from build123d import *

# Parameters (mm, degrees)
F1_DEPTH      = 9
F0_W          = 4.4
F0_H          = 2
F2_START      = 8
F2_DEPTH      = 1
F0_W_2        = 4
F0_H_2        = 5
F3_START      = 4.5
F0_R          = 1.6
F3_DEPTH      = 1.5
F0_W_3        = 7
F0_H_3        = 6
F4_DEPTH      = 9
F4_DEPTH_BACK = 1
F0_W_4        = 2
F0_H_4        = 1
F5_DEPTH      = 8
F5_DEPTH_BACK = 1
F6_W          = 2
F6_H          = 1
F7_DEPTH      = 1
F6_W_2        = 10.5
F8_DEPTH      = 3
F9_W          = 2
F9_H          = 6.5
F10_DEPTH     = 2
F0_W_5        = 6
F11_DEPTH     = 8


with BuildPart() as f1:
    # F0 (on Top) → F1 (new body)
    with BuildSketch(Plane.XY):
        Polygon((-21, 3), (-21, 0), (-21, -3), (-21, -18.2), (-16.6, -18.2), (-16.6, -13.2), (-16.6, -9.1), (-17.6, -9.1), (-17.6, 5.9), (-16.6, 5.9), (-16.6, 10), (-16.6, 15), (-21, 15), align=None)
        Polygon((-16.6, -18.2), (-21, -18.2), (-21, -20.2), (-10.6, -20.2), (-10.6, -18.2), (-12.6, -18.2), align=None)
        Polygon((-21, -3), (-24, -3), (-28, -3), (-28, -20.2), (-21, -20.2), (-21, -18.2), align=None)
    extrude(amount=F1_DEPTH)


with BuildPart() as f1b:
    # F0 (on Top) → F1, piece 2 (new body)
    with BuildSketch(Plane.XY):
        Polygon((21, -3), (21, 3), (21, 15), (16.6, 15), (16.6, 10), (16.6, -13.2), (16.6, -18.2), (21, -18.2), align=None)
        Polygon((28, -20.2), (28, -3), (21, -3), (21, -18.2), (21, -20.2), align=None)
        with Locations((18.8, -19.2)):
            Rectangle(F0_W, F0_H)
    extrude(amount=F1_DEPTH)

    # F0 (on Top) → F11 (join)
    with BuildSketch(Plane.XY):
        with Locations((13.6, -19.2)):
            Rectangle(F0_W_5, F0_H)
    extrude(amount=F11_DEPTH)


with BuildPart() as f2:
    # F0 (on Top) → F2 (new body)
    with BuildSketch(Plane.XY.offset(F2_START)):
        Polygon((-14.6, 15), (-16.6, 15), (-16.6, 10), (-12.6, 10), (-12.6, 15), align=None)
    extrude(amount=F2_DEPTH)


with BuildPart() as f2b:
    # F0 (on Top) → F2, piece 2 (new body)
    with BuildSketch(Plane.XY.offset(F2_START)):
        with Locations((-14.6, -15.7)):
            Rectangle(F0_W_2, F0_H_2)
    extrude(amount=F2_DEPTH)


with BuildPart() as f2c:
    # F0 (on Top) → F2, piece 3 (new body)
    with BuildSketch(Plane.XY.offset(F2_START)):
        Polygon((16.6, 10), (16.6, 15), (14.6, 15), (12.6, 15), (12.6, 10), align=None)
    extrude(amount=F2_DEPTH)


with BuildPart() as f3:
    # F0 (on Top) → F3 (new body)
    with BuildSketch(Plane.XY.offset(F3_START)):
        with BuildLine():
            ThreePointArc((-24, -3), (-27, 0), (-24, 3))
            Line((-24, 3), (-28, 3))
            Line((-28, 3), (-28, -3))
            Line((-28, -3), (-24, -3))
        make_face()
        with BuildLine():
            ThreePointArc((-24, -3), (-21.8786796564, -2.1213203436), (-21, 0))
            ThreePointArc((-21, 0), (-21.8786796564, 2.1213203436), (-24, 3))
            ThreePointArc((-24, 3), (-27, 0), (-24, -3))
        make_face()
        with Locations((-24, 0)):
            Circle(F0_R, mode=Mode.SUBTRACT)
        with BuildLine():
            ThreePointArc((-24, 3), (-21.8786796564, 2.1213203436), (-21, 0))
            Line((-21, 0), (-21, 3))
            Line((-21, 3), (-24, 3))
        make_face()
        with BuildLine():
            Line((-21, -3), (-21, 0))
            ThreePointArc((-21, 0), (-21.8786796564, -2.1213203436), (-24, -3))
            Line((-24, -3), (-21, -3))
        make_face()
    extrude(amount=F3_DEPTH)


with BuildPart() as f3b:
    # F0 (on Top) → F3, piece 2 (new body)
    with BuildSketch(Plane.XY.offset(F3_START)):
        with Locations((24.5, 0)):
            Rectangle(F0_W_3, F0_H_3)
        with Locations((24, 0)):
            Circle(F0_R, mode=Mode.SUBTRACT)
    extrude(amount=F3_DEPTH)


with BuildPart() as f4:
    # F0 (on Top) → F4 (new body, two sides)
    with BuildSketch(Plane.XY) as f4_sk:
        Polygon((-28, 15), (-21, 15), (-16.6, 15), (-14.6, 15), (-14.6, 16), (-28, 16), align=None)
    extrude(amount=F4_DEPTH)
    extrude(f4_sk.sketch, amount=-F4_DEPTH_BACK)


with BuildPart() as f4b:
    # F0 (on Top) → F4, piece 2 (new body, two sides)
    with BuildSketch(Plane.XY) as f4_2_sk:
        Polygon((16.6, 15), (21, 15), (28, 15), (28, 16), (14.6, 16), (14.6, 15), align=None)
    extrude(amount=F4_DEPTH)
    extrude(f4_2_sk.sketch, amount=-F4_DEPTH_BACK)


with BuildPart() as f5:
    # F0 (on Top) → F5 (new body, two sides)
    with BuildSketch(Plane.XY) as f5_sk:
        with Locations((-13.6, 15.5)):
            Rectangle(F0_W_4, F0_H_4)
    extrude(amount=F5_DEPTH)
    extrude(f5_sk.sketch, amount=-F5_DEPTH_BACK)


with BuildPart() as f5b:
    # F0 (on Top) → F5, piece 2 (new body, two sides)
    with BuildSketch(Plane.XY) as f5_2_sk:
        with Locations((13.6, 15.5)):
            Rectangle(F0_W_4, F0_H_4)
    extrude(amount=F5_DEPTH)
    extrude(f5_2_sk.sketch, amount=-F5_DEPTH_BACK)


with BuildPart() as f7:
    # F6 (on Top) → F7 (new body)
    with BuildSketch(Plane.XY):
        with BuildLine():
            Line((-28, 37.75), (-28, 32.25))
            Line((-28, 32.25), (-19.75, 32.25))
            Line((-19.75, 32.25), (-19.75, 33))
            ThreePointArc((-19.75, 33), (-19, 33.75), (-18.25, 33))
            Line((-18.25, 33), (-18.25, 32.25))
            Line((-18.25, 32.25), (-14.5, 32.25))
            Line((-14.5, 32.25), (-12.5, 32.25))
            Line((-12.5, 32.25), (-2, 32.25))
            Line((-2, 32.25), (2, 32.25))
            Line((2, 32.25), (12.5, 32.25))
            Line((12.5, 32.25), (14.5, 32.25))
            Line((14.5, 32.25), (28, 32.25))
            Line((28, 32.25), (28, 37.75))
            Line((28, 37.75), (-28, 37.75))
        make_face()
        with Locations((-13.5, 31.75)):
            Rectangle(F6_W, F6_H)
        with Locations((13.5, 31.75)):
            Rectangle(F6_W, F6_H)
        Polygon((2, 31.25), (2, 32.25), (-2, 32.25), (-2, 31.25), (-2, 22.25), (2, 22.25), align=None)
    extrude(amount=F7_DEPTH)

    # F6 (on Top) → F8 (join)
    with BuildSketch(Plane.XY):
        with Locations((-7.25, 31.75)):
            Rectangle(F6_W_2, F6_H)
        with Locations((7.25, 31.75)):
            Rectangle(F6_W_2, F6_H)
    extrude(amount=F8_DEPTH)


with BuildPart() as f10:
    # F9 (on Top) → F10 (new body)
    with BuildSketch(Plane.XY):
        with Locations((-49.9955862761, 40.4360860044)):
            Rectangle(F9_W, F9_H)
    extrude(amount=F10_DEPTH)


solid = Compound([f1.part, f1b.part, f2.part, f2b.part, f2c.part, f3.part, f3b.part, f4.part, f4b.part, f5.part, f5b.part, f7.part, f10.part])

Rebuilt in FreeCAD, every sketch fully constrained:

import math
import FreeCAD as App
import Part
import Sketcher
from FreeCAD import Vector
Q = App.Units.Quantity

doc = App.newDocument("Part")
body = doc.addObject("PartDesign::Body", "Body")

# Sketch on XY plane
sketch1 = doc.addObject("Sketcher::SketchObject", "Sketch")
body.addObject(sketch1)
sketch1.AttachmentSupport = (doc.XY_Plane, [""])
sketch1.MapMode = "FlatFace"
sketch1.addGeometry(Part.LineSegment(Vector(-16.6, -18.2, 0), Vector(-16.6, -9.1, 0)), False)
sketch1.addGeometry(Part.LineSegment(Vector(-16.6, -9.1, 0), Vector(-17.6, -9.1, 0)), False)
sketch1.addGeometry(Part.LineSegment(Vector(-17.6, -9.1, 0), Vector(-17.6, 5.9, 0)), False)
sketch1.addGeometry(Part.LineSegment(Vector(-17.6, 5.9, 0), Vector(-16.6, 5.9, 0)), False)
sketch1.addGeometry(Part.LineSegment(Vector(-16.6, 5.9, 0), Vector(-16.6, 15, 0)), False)
sketch1.addGeometry(Part.LineSegment(Vector(-16.6, 15, 0), Vector(-21, 15, 0)), False)
sketch1.addGeometry(Part.LineSegment(Vector(-21, 15, 0), Vector(-21, -3, 0)), False)
sketch1.addGeometry(Part.LineSegment(Vector(-21, -3, 0), Vector(-28, -3, 0)), False)
sketch1.addGeometry(Part.LineSegment(Vector(-28, -3, 0), Vector(-28, -20.2, 0)), False)
sketch1.addGeometry(Part.LineSegment(Vector(-28, -20.2, 0), Vector(-10.6, -20.2, 0)), False)
sketch1.addGeometry(Part.LineSegment(Vector(-10.6, -20.2, 0), Vector(-10.6, -18.2, 0)), False)
sketch1.addGeometry(Part.LineSegment(Vector(-10.6, -18.2, 0), Vector(-16.6, -18.2, 0)), False)
sketch1.addConstraint(Sketcher.Constraint("Coincident", 0, 2, 1, 1))
sketch1.addConstraint(Sketcher.Constraint("Coincident", 1, 2, 2, 1))
sketch1.addConstraint(Sketcher.Constraint("Coincident", 2, 2, 3, 1))
sketch1.addConstraint(Sketcher.Constraint("Coincident", 3, 2, 4, 1))
sketch1.addConstraint(Sketcher.Constraint("Coincident", 4, 2, 5, 1))
sketch1.addConstraint(Sketcher.Constraint("Coincident", 5, 2, 6, 1))
sketch1.addConstraint(Sketcher.Constraint("Coincident", 6, 2, 7, 1))
sketch1.addConstraint(Sketcher.Constraint("Coincident", 7, 2, 8, 1))
sketch1.addConstraint(Sketcher.Constraint("Coincident", 8, 2, 9, 1))
sketch1.addConstraint(Sketcher.Constraint("Coincident", 9, 2, 10, 1))
sketch1.addConstraint(Sketcher.Constraint("Coincident", 10, 2, 11, 1))
sketch1.addConstraint(Sketcher.Constraint("Coincident", 11, 2, 0, 1))
sketch1.addConstraint(Sketcher.Constraint("Vertical", 0))
sketch1.addConstraint(Sketcher.Constraint("Horizontal", 1))
sketch1.addConstraint(Sketcher.Constraint("Vertical", 2))
sketch1.addConstraint(Sketcher.Constraint("Horizontal", 3))
sketch1.addConstraint(Sketcher.Constraint("Vertical", 4))
sketch1.addConstraint(Sketcher.Constraint("Horizontal", 5))
sketch1.addConstraint(Sketcher.Constraint("Vertical", 6))
sketch1.addConstraint(Sketcher.Constraint("Horizontal", 7))
sketch1.addConstraint(Sketcher.Constraint("Vertical", 8))
sketch1.addConstraint(Sketcher.Constraint("Horizontal", 9))
sketch1.addConstraint(Sketcher.Constraint("Vertical", 10))
sketch1.addConstraint(Sketcher.Constraint("Horizontal", 11))
sketch1.addConstraint(Sketcher.Constraint("Vertical", 0, 2, 3, 2))
sketch1.addConstraint(Sketcher.Constraint("Equal", 0, 4))
sketch1.addConstraint(Sketcher.Constraint("DistanceX", 1, 2, 1, 1, Q("1 mm")))
sketch1.addConstraint(Sketcher.Constraint("DistanceX", 7, 2, 7, 1, Q("7 mm")))
sketch1.addConstraint(Sketcher.Constraint("DistanceX", 11, 2, 11, 1, Q("6 mm")))
sketch1.addConstraint(Sketcher.Constraint("DistanceY", 2, 1, 2, 2, Q("15 mm")))
sketch1.addConstraint(Sketcher.Constraint("DistanceY", 6, 2, 6, 1, Q("18 mm")))
sketch1.addConstraint(Sketcher.Constraint("DistanceY", 10, 1, 10, 2, Q("2 mm")))
sketch1.addConstraint(Sketcher.Constraint("DistanceX", 5, 2, 5, 1, Q("4.4 mm")))
sketch1.addConstraint(Sketcher.Constraint("DistanceY", 0, 1, 0, 2, Q("9.1 mm")))
sketch1.addConstraint(Sketcher.Constraint("DistanceY", -1, 1, 4, 2, Q("15 mm")))
sketch1.addConstraint(Sketcher.Constraint("DistanceX", 5, 2, -1, 1, Q("21 mm")))
pad1 = doc.addObject("PartDesign::Pad", "Pad")
body.addObject(pad1)
pad1.Profile = sketch1
pad1.Length = 9
body2 = doc.addObject("PartDesign::Body", "Body001")

# Sketch on XY plane
sketch2 = doc.addObject("Sketcher::SketchObject", "Sketch001")
body2.addObject(sketch2)
sketch2.AttachmentSupport = (doc.getObject("XY_Plane001"), [""])
sketch2.MapMode = "FlatFace"
sketch2.addGeometry(Part.LineSegment(Vector(21, 15, 0), Vector(16.6, 15, 0)), False)
sketch2.addGeometry(Part.LineSegment(Vector(16.6, 15, 0), Vector(16.6, -20.2, 0)), False)
sketch2.addGeometry(Part.LineSegment(Vector(16.6, -20.2, 0), Vector(28, -20.2, 0)), False)
sketch2.addGeometry(Part.LineSegment(Vector(28, -20.2, 0), Vector(28, -3, 0)), False)
sketch2.addGeometry(Part.LineSegment(Vector(28, -3, 0), Vector(21, -3, 0)), False)
sketch2.addGeometry(Part.LineSegment(Vector(21, -3, 0), Vector(21, 15, 0)), False)
sketch2.addConstraint(Sketcher.Constraint("Coincident", 0, 2, 1, 1))
sketch2.addConstraint(Sketcher.Constraint("Coincident", 1, 2, 2, 1))
sketch2.addConstraint(Sketcher.Constraint("Coincident", 2, 2, 3, 1))
sketch2.addConstraint(Sketcher.Constraint("Coincident", 3, 2, 4, 1))
sketch2.addConstraint(Sketcher.Constraint("Coincident", 4, 2, 5, 1))
sketch2.addConstraint(Sketcher.Constraint("Coincident", 5, 2, 0, 1))
sketch2.addConstraint(Sketcher.Constraint("Horizontal", 0))
sketch2.addConstraint(Sketcher.Constraint("Vertical", 1))
sketch2.addConstraint(Sketcher.Constraint("Horizontal", 2))
sketch2.addConstraint(Sketcher.Constraint("Vertical", 3))
sketch2.addConstraint(Sketcher.Constraint("Horizontal", 4))
sketch2.addConstraint(Sketcher.Constraint("Vertical", 5))
sketch2.addConstraint(Sketcher.Constraint("DistanceX", 4, 2, 4, 1, Q("7 mm")))
sketch2.addConstraint(Sketcher.Constraint("DistanceY", 5, 1, 5, 2, Q("18 mm")))
sketch2.addConstraint(Sketcher.Constraint("DistanceX", 0, 2, 0, 1, Q("4.4 mm")))
sketch2.addConstraint(Sketcher.Constraint("DistanceY", 1, 2, 1, 1, Q("35.2 mm")))
sketch2.addConstraint(Sketcher.Constraint("DistanceY", -1, 1, 0, 2, Q("15 mm")))
sketch2.addConstraint(Sketcher.Constraint("DistanceX", -1, 1, 2, 2, Q("28 mm")))
pad2 = doc.addObject("PartDesign::Pad", "Pad001")
body2.addObject(pad2)
pad2.Profile = sketch2
pad2.Length = 9

# Sketch on XY plane
sketch3 = doc.addObject("Sketcher::SketchObject", "Sketch002")
body2.addObject(sketch3)
sketch3.AttachmentSupport = (doc.getObject("XY_Plane001"), [""])
sketch3.MapMode = "FlatFace"
sketch3.addGeometry(Part.LineSegment(Vector(10.6, -18.2, 0), Vector(10.6, -20.2, 0)), False)
sketch3.addGeometry(Part.LineSegment(Vector(10.6, -20.2, 0), Vector(16.6, -20.2, 0)), False)
sketch3.addGeometry(Part.LineSegment(Vector(16.6, -20.2, 0), Vector(16.6, -18.2, 0)), False)
sketch3.addGeometry(Part.LineSegment(Vector(16.6, -18.2, 0), Vector(10.6, -18.2, 0)), False)
sketch3.addConstraint(Sketcher.Constraint("Coincident", 0, 2, 1, 1))
sketch3.addConstraint(Sketcher.Constraint("Coincident", 1, 2, 2, 1))
sketch3.addConstraint(Sketcher.Constraint("Coincident", 2, 2, 3, 1))
sketch3.addConstraint(Sketcher.Constraint("Coincident", 3, 2, 0, 1))
sketch3.addConstraint(Sketcher.Constraint("Vertical", 0))
sketch3.addConstraint(Sketcher.Constraint("Horizontal", 1))
sketch3.addConstraint(Sketcher.Constraint("Vertical", 2))
sketch3.addConstraint(Sketcher.Constraint("Horizontal", 3))
sketch3.addConstraint(Sketcher.Constraint("DistanceX", 1, 1, 1, 2, Q("6 mm")))
sketch3.addConstraint(Sketcher.Constraint("DistanceY", 0, 2, 0, 1, Q("2 mm")))
sketch3.addConstraint(Sketcher.Constraint("DistanceX", -1, 1, 0, 2, Q("10.6 mm")))
sketch3.addConstraint(Sketcher.Constraint("DistanceY", 0, 2, -1, 1, Q("20.2 mm")))
pad3 = doc.addObject("PartDesign::Pad", "Pad002")
body2.addObject(pad3)
pad3.Profile = sketch3
pad3.Length = 8
body3 = doc.addObject("PartDesign::Body", "Body002")

# Sketch on XY plane
sketch4 = doc.addObject("Sketcher::SketchObject", "Sketch003")
body3.addObject(sketch4)
sketch4.AttachmentSupport = (doc.getObject("XY_Plane002"), [""])
sketch4.MapMode = "FlatFace"
sketch4.AttachmentOffset = App.Placement(Vector(0, 0, 8), App.Rotation())
sketch4.addGeometry(Part.LineSegment(Vector(-16.6, 15, 0), Vector(-16.6, 10, 0)), False)
sketch4.addGeometry(Part.LineSegment(Vector(-16.6, 10, 0), Vector(-12.6, 10, 0)), False)
sketch4.addGeometry(Part.LineSegment(Vector(-12.6, 10, 0), Vector(-12.6, 15, 0)), False)
sketch4.addGeometry(Part.LineSegment(Vector(-12.6, 15, 0), Vector(-16.6, 15, 0)), False)
sketch4.addConstraint(Sketcher.Constraint("Coincident", 0, 2, 1, 1))
sketch4.addConstraint(Sketcher.Constraint("Coincident", 1, 2, 2, 1))
sketch4.addConstraint(Sketcher.Constraint("Coincident", 2, 2, 3, 1))
sketch4.addConstraint(Sketcher.Constraint("Coincident", 3, 2, 0, 1))
sketch4.addConstraint(Sketcher.Constraint("Vertical", 0))
sketch4.addConstraint(Sketcher.Constraint("Horizontal", 1))
sketch4.addConstraint(Sketcher.Constraint("Vertical", 2))
sketch4.addConstraint(Sketcher.Constraint("Horizontal", 3))
sketch4.addConstraint(Sketcher.Constraint("DistanceX", 1, 1, 1, 2, Q("4 mm")))
sketch4.addConstraint(Sketcher.Constraint("DistanceY", 0, 2, 0, 1, Q("5 mm")))
sketch4.addConstraint(Sketcher.Constraint("DistanceY", -1, 1, 0, 2, Q("10 mm")))
sketch4.addConstraint(Sketcher.Constraint("DistanceX", 0, 2, -1, 1, Q("16.6 mm")))
pad4 = doc.addObject("PartDesign::Pad", "Pad003")
body3.addObject(pad4)
pad4.Profile = sketch4
pad4.Length = 1
body4 = doc.addObject("PartDesign::Body", "Body003")

# Sketch on XY plane
sketch5 = doc.addObject("Sketcher::SketchObject", "Sketch004")
body4.addObject(sketch5)
sketch5.AttachmentSupport = (doc.getObject("XY_Plane003"), [""])
sketch5.MapMode = "FlatFace"
sketch5.AttachmentOffset = App.Placement(Vector(0, 0, 8), App.Rotation())
sketch5.addGeometry(Part.LineSegment(Vector(-16.6, -13.2, 0), Vector(-16.6, -18.2, 0)), False)
sketch5.addGeometry(Part.LineSegment(Vector(-16.6, -18.2, 0), Vector(-12.6, -18.2, 0)), False)
sketch5.addGeometry(Part.LineSegment(Vector(-12.6, -18.2, 0), Vector(-12.6, -13.2, 0)), False)
sketch5.addGeometry(Part.LineSegment(Vector(-12.6, -13.2, 0), Vector(-16.6, -13.2, 0)), False)
sketch5.addConstraint(Sketcher.Constraint("Coincident", 0, 2, 1, 1))
sketch5.addConstraint(Sketcher.Constraint("Coincident", 1, 2, 2, 1))
sketch5.addConstraint(Sketcher.Constraint("Coincident", 2, 2, 3, 1))
sketch5.addConstraint(Sketcher.Constraint("Coincident", 3, 2, 0, 1))
sketch5.addConstraint(Sketcher.Constraint("Vertical", 0))
sketch5.addConstraint(Sketcher.Constraint("Horizontal", 1))
sketch5.addConstraint(Sketcher.Constraint("Vertical", 2))
sketch5.addConstraint(Sketcher.Constraint("Horizontal", 3))
sketch5.addConstraint(Sketcher.Constraint("DistanceX", 1, 1, 1, 2, Q("4 mm")))
sketch5.addConstraint(Sketcher.Constraint("DistanceY", 0, 2, 0, 1, Q("5 mm")))
sketch5.addConstraint(Sketcher.Constraint("DistanceX", 0, 2, -1, 1, Q("16.6 mm")))
sketch5.addConstraint(Sketcher.Constraint("DistanceY", 0, 2, -1, 1, Q("18.2 mm")))
pad5 = doc.addObject("PartDesign::Pad", "Pad004")
body4.addObject(pad5)
pad5.Profile = sketch5
pad5.Length = 1
body5 = doc.addObject("PartDesign::Body", "Body004")

# Sketch on XY plane
sketch6 = doc.addObject("Sketcher::SketchObject", "Sketch005")
body5.addObject(sketch6)
sketch6.AttachmentSupport = (doc.getObject("XY_Plane004"), [""])
sketch6.MapMode = "FlatFace"
sketch6.AttachmentOffset = App.Placement(Vector(0, 0, 8), App.Rotation())
sketch6.addGeometry(Part.LineSegment(Vector(16.6, 10, 0), Vector(16.6, 15, 0)), False)
sketch6.addGeometry(Part.LineSegment(Vector(16.6, 15, 0), Vector(12.6, 15, 0)), False)
sketch6.addGeometry(Part.LineSegment(Vector(12.6, 15, 0), Vector(12.6, 10, 0)), False)
sketch6.addGeometry(Part.LineSegment(Vector(12.6, 10, 0), Vector(16.6, 10, 0)), False)
sketch6.addConstraint(Sketcher.Constraint("Coincident", 0, 2, 1, 1))
sketch6.addConstraint(Sketcher.Constraint("Coincident", 1, 2, 2, 1))
sketch6.addConstraint(Sketcher.Constraint("Coincident", 2, 2, 3, 1))
sketch6.addConstraint(Sketcher.Constraint("Coincident", 3, 2, 0, 1))
sketch6.addConstraint(Sketcher.Constraint("Vertical", 0))
sketch6.addConstraint(Sketcher.Constraint("Horizontal", 1))
sketch6.addConstraint(Sketcher.Constraint("Vertical", 2))
sketch6.addConstraint(Sketcher.Constraint("Horizontal", 3))
sketch6.addConstraint(Sketcher.Constraint("DistanceX", 1, 2, 1, 1, Q("4 mm")))
sketch6.addConstraint(Sketcher.Constraint("DistanceY", 0, 1, 0, 2, Q("5 mm")))
sketch6.addConstraint(Sketcher.Constraint("DistanceY", -1, 1, 0, 2, Q("15 mm")))
sketch6.addConstraint(Sketcher.Constraint("DistanceX", -1, 1, 0, 2, Q("16.6 mm")))
pad6 = doc.addObject("PartDesign::Pad", "Pad005")
body5.addObject(pad6)
pad6.Profile = sketch6
pad6.Length = 1
body6 = doc.addObject("PartDesign::Body", "Body005")

# Sketch on XY plane
sketch7 = doc.addObject("Sketcher::SketchObject", "Sketch006")
body6.addObject(sketch7)
sketch7.AttachmentSupport = (doc.getObject("XY_Plane005"), [""])
sketch7.MapMode = "FlatFace"
sketch7.AttachmentOffset = App.Placement(Vector(0, 0, 4.5), App.Rotation())
sketch7.addGeometry(Part.LineSegment(Vector(-28, 3, 0), Vector(-28, -3, 0)), False)
sketch7.addGeometry(Part.LineSegment(Vector(-28, -3, 0), Vector(-21, -3, 0)), False)
sketch7.addGeometry(Part.LineSegment(Vector(-21, -3, 0), Vector(-21, 3, 0)), False)
sketch7.addGeometry(Part.LineSegment(Vector(-21, 3, 0), Vector(-28, 3, 0)), False)
sketch7.addGeometry(Part.Circle(Vector(-24, 0, 0), Vector(0, 0, 1), 1.6), False)
sketch7.addConstraint(Sketcher.Constraint("Coincident", 0, 2, 1, 1))
sketch7.addConstraint(Sketcher.Constraint("Coincident", 1, 2, 2, 1))
sketch7.addConstraint(Sketcher.Constraint("Coincident", 2, 2, 3, 1))
sketch7.addConstraint(Sketcher.Constraint("Coincident", 3, 2, 0, 1))
sketch7.addConstraint(Sketcher.Constraint("Vertical", 0))
sketch7.addConstraint(Sketcher.Constraint("Horizontal", 1))
sketch7.addConstraint(Sketcher.Constraint("Vertical", 2))
sketch7.addConstraint(Sketcher.Constraint("Horizontal", 3))
sketch7.addConstraint(Sketcher.Constraint("PointOnObject", 4, 3, -1))
sketch7.addConstraint(Sketcher.Constraint("Diameter", 4, Q("3.2 mm")))
sketch7.addConstraint(Sketcher.Constraint("DistanceX", 1, 1, 1, 2, Q("7 mm")))
sketch7.addConstraint(Sketcher.Constraint("DistanceY", 0, 2, 0, 1, Q("6 mm")))
sketch7.addConstraint(Sketcher.Constraint("DistanceX", 4, 3, -1, 1, Q("24 mm")))
sketch7.addConstraint(Sketcher.Constraint("DistanceX", 0, 2, -1, 1, Q("28 mm")))
sketch7.addConstraint(Sketcher.Constraint("DistanceY", 0, 2, -1, 1, Q("3 mm")))
pad7 = doc.addObject("PartDesign::Pad", "Pad006")
body6.addObject(pad7)
pad7.Profile = sketch7
pad7.Length = 1.5
body7 = doc.addObject("PartDesign::Body", "Body006")

# Sketch on XY plane
sketch8 = doc.addObject("Sketcher::SketchObject", "Sketch007")
body7.addObject(sketch8)
sketch8.AttachmentSupport = (doc.getObject("XY_Plane006"), [""])
sketch8.MapMode = "FlatFace"
sketch8.AttachmentOffset = App.Placement(Vector(0, 0, 4.5), App.Rotation())
sketch8.addGeometry(Part.LineSegment(Vector(21, 3, 0), Vector(21, -3, 0)), False)
sketch8.addGeometry(Part.LineSegment(Vector(21, -3, 0), Vector(28, -3, 0)), False)
sketch8.addGeometry(Part.LineSegment(Vector(28, -3, 0), Vector(28, 3, 0)), False)
sketch8.addGeometry(Part.LineSegment(Vector(28, 3, 0), Vector(21, 3, 0)), False)
sketch8.addGeometry(Part.Circle(Vector(24, 0, 0), Vector(0, 0, 1), 1.6), False)
sketch8.addConstraint(Sketcher.Constraint("Coincident", 0, 2, 1, 1))
sketch8.addConstraint(Sketcher.Constraint("Coincident", 1, 2, 2, 1))
sketch8.addConstraint(Sketcher.Constraint("Coincident", 2, 2, 3, 1))
sketch8.addConstraint(Sketcher.Constraint("Coincident", 3, 2, 0, 1))
sketch8.addConstraint(Sketcher.Constraint("Vertical", 0))
sketch8.addConstraint(Sketcher.Constraint("Horizontal", 1))
sketch8.addConstraint(Sketcher.Constraint("Vertical", 2))
sketch8.addConstraint(Sketcher.Constraint("Horizontal", 3))
sketch8.addConstraint(Sketcher.Constraint("PointOnObject", 4, 3, -1))
sketch8.addConstraint(Sketcher.Constraint("Diameter", 4, Q("3.2 mm")))
sketch8.addConstraint(Sketcher.Constraint("DistanceX", 1, 1, 1, 2, Q("7 mm")))
sketch8.addConstraint(Sketcher.Constraint("DistanceY", 0, 2, 0, 1, Q("6 mm")))
sketch8.addConstraint(Sketcher.Constraint("DistanceX", -1, 1, 4, 3, Q("24 mm")))
sketch8.addConstraint(Sketcher.Constraint("DistanceX", -1, 1, 0, 2, Q("21 mm")))
sketch8.addConstraint(Sketcher.Constraint("DistanceY", 0, 2, -1, 1, Q("3 mm")))
pad8 = doc.addObject("PartDesign::Pad", "Pad007")
body7.addObject(pad8)
pad8.Profile = sketch8
pad8.Length = 1.5
body8 = doc.addObject("PartDesign::Body", "Body007")

# Sketch on XY plane
sketch9 = doc.addObject("Sketcher::SketchObject", "Sketch008")
body8.addObject(sketch9)
sketch9.AttachmentSupport = (doc.getObject("XY_Plane007"), [""])
sketch9.MapMode = "FlatFace"
sketch9.addGeometry(Part.LineSegment(Vector(-28, 15, 0), Vector(-14.6, 15, 0)), False)
sketch9.addGeometry(Part.LineSegment(Vector(-14.6, 15, 0), Vector(-14.6, 16, 0)), False)
sketch9.addGeometry(Part.LineSegment(Vector(-14.6, 16, 0), Vector(-28, 16, 0)), False)
sketch9.addGeometry(Part.LineSegment(Vector(-28, 16, 0), Vector(-28, 15, 0)), False)
sketch9.addConstraint(Sketcher.Constraint("Coincident", 0, 2, 1, 1))
sketch9.addConstraint(Sketcher.Constraint("Coincident", 1, 2, 2, 1))
sketch9.addConstraint(Sketcher.Constraint("Coincident", 2, 2, 3, 1))
sketch9.addConstraint(Sketcher.Constraint("Coincident", 3, 2, 0, 1))
sketch9.addConstraint(Sketcher.Constraint("Horizontal", 0))
sketch9.addConstraint(Sketcher.Constraint("Vertical", 1))
sketch9.addConstraint(Sketcher.Constraint("Horizontal", 2))
sketch9.addConstraint(Sketcher.Constraint("Vertical", 3))
sketch9.addConstraint(Sketcher.Constraint("DistanceY", 1, 1, 1, 2, Q("1 mm")))
sketch9.addConstraint(Sketcher.Constraint("DistanceX", 0, 1, 0, 2, Q("13.4 mm")))
sketch9.addConstraint(Sketcher.Constraint("DistanceY", -1, 1, 0, 2, Q("15 mm")))
sketch9.addConstraint(Sketcher.Constraint("DistanceX", 2, 2, -1, 1, Q("28 mm")))
pad9 = doc.addObject("PartDesign::Pad", "Pad008")
body8.addObject(pad9)
pad9.Profile = sketch9
pad9.Type = "TwoLengths"
pad9.Length = 9
pad9.Length2 = 1
body9 = doc.addObject("PartDesign::Body", "Body008")

# Sketch on XY plane
sketch10 = doc.addObject("Sketcher::SketchObject", "Sketch009")
body9.addObject(sketch10)
sketch10.AttachmentSupport = (doc.getObject("XY_Plane008"), [""])
sketch10.MapMode = "FlatFace"
sketch10.addGeometry(Part.LineSegment(Vector(28, 15, 0), Vector(28, 16, 0)), False)
sketch10.addGeometry(Part.LineSegment(Vector(28, 16, 0), Vector(14.6, 16, 0)), False)
sketch10.addGeometry(Part.LineSegment(Vector(14.6, 16, 0), Vector(14.6, 15, 0)), False)
sketch10.addGeometry(Part.LineSegment(Vector(14.6, 15, 0), Vector(28, 15, 0)), False)
sketch10.addConstraint(Sketcher.Constraint("Coincident", 0, 2, 1, 1))
sketch10.addConstraint(Sketcher.Constraint("Coincident", 1, 2, 2, 1))
sketch10.addConstraint(Sketcher.Constraint("Coincident", 2, 2, 3, 1))
sketch10.addConstraint(Sketcher.Constraint("Coincident", 3, 2, 0, 1))
sketch10.addConstraint(Sketcher.Constraint("Vertical", 0))
sketch10.addConstraint(Sketcher.Constraint("Horizontal", 1))
sketch10.addConstraint(Sketcher.Constraint("Vertical", 2))
sketch10.addConstraint(Sketcher.Constraint("Horizontal", 3))
sketch10.addConstraint(Sketcher.Constraint("DistanceY", 0, 1, 0, 2, Q("1 mm")))
sketch10.addConstraint(Sketcher.Constraint("DistanceX", 1, 2, 1, 1, Q("13.4 mm")))
sketch10.addConstraint(Sketcher.Constraint("DistanceX", -1, 1, 0, 2, Q("28 mm")))
sketch10.addConstraint(Sketcher.Constraint("DistanceY", -1, 1, 0, 2, Q("16 mm")))
pad10 = doc.addObject("PartDesign::Pad", "Pad009")
body9.addObject(pad10)
pad10.Profile = sketch10
pad10.Type = "TwoLengths"
pad10.Length = 9
pad10.Length2 = 1
body10 = doc.addObject("PartDesign::Body", "Body009")

# Sketch on XY plane
sketch11 = doc.addObject("Sketcher::SketchObject", "Sketch010")
body10.addObject(sketch11)
sketch11.AttachmentSupport = (doc.getObject("XY_Plane009"), [""])
sketch11.MapMode = "FlatFace"
sketch11.addGeometry(Part.LineSegment(Vector(-14.6, 16, 0), Vector(-14.6, 15, 0)), False)
sketch11.addGeometry(Part.LineSegment(Vector(-14.6, 15, 0), Vector(-12.6, 15, 0)), False)
sketch11.addGeometry(Part.LineSegment(Vector(-12.6, 15, 0), Vector(-12.6, 16, 0)), False)
sketch11.addGeometry(Part.LineSegment(Vector(-12.6, 16, 0), Vector(-14.6, 16, 0)), False)
sketch11.addConstraint(Sketcher.Constraint("Coincident", 0, 2, 1, 1))
sketch11.addConstraint(Sketcher.Constraint("Coincident", 1, 2, 2, 1))
sketch11.addConstraint(Sketcher.Constraint("Coincident", 2, 2, 3, 1))
sketch11.addConstraint(Sketcher.Constraint("Coincident", 3, 2, 0, 1))
sketch11.addConstraint(Sketcher.Constraint("Vertical", 0))
sketch11.addConstraint(Sketcher.Constraint("Horizontal", 1))
sketch11.addConstraint(Sketcher.Constraint("Vertical", 2))
sketch11.addConstraint(Sketcher.Constraint("Horizontal", 3))
sketch11.addConstraint(Sketcher.Constraint("DistanceX", 1, 1, 1, 2, Q("2 mm")))
sketch11.addConstraint(Sketcher.Constraint("DistanceY", 0, 2, 0, 1, Q("1 mm")))
sketch11.addConstraint(Sketcher.Constraint("DistanceY", -1, 1, 0, 2, Q("15 mm")))
sketch11.addConstraint(Sketcher.Constraint("DistanceX", 0, 2, -1, 1, Q("14.6 mm")))
pad11 = doc.addObject("PartDesign::Pad", "Pad010")
body10.addObject(pad11)
pad11.Profile = sketch11
pad11.Type = "TwoLengths"
pad11.Length = 8
pad11.Length2 = 1
body11 = doc.addObject("PartDesign::Body", "Body010")

# Sketch on XY plane
sketch12 = doc.addObject("Sketcher::SketchObject", "Sketch011")
body11.addObject(sketch12)
sketch12.AttachmentSupport = (doc.getObject("XY_Plane010"), [""])
sketch12.MapMode = "FlatFace"
sketch12.addGeometry(Part.LineSegment(Vector(12.6, 16, 0), Vector(12.6, 15, 0)), False)
sketch12.addGeometry(Part.LineSegment(Vector(12.6, 15, 0), Vector(14.6, 15, 0)), False)
sketch12.addGeometry(Part.LineSegment(Vector(14.6, 15, 0), Vector(14.6, 16, 0)), False)
sketch12.addGeometry(Part.LineSegment(Vector(14.6, 16, 0), Vector(12.6, 16, 0)), False)
sketch12.addConstraint(Sketcher.Constraint("Coincident", 0, 2, 1, 1))
sketch12.addConstraint(Sketcher.Constraint("Coincident", 1, 2, 2, 1))
sketch12.addConstraint(Sketcher.Constraint("Coincident", 2, 2, 3, 1))
sketch12.addConstraint(Sketcher.Constraint("Coincident", 3, 2, 0, 1))
sketch12.addConstraint(Sketcher.Constraint("Vertical", 0))
sketch12.addConstraint(Sketcher.Constraint("Horizontal", 1))
sketch12.addConstraint(Sketcher.Constraint("Vertical", 2))
sketch12.addConstraint(Sketcher.Constraint("Horizontal", 3))
sketch12.addConstraint(Sketcher.Constraint("DistanceX", 1, 1, 1, 2, Q("2 mm")))
sketch12.addConstraint(Sketcher.Constraint("DistanceY", 0, 2, 0, 1, Q("1 mm")))
sketch12.addConstraint(Sketcher.Constraint("DistanceY", -1, 1, 0, 2, Q("15 mm")))
sketch12.addConstraint(Sketcher.Constraint("DistanceX", -1, 1, 0, 2, Q("12.6 mm")))
pad12 = doc.addObject("PartDesign::Pad", "Pad011")
body11.addObject(pad12)
pad12.Profile = sketch12
pad12.Type = "TwoLengths"
pad12.Length = 8
pad12.Length2 = 1
body12 = doc.addObject("PartDesign::Body", "Body011")

# Sketch on XY plane
sketch13 = doc.addObject("Sketcher::SketchObject", "Sketch012")
body12.addObject(sketch13)
sketch13.AttachmentSupport = (doc.getObject("XY_Plane011"), [""])
sketch13.MapMode = "FlatFace"
sketch13.addGeometry(Part.LineSegment(Vector(-28, 37.75, 0), Vector(-28, 32.25, 0)), False)
sketch13.addGeometry(Part.LineSegment(Vector(-28, 32.25, 0), Vector(-19.75, 32.25, 0)), False)
sketch13.addGeometry(Part.LineSegment(Vector(-19.75, 32.25, 0), Vector(-19.75, 33, 0)), False)
sketch13.addGeometry(Part.ArcOfCircle(Part.Circle(Vector(-19, 33, 0), Vector(0, 0, 1), 0.75), math.radians(0), math.radians(180)), False)
sketch13.addGeometry(Part.LineSegment(Vector(-18.25, 33, 0), Vector(-18.25, 32.25, 0)), False)
sketch13.addGeometry(Part.LineSegment(Vector(-18.25, 32.25, 0), Vector(-14.5, 32.25, 0)), False)
sketch13.addGeometry(Part.LineSegment(Vector(-14.5, 32.25, 0), Vector(-14.5, 31.25, 0)), False)
sketch13.addGeometry(Part.LineSegment(Vector(-14.5, 31.25, 0), Vector(-12.5, 31.25, 0)), False)
sketch13.addGeometry(Part.LineSegment(Vector(-12.5, 31.25, 0), Vector(-12.5, 32.25, 0)), False)
sketch13.addGeometry(Part.LineSegment(Vector(-12.5, 32.25, 0), Vector(-2, 32.25, 0)), False)
sketch13.addGeometry(Part.LineSegment(Vector(-2, 32.25, 0), Vector(-2, 22.25, 0)), False)
sketch13.addGeometry(Part.LineSegment(Vector(-2, 22.25, 0), Vector(2, 22.25, 0)), False)
sketch13.addGeometry(Part.LineSegment(Vector(2, 22.25, 0), Vector(2, 32.25, 0)), False)
sketch13.addGeometry(Part.LineSegment(Vector(2, 32.25, 0), Vector(12.5, 32.25, 0)), False)
sketch13.addGeometry(Part.LineSegment(Vector(12.5, 32.25, 0), Vector(12.5, 31.25, 0)), False)
sketch13.addGeometry(Part.LineSegment(Vector(12.5, 31.25, 0), Vector(14.5, 31.25, 0)), False)
sketch13.addGeometry(Part.LineSegment(Vector(14.5, 31.25, 0), Vector(14.5, 32.25, 0)), False)
sketch13.addGeometry(Part.LineSegment(Vector(14.5, 32.25, 0), Vector(28, 32.25, 0)), False)
sketch13.addGeometry(Part.LineSegment(Vector(28, 32.25, 0), Vector(28, 37.75, 0)), False)
sketch13.addGeometry(Part.LineSegment(Vector(28, 37.75, 0), Vector(-28, 37.75, 0)), False)
sketch13.addConstraint(Sketcher.Constraint("Coincident", 0, 2, 1, 1))
sketch13.addConstraint(Sketcher.Constraint("Coincident", 1, 2, 2, 1))
sketch13.addConstraint(Sketcher.Constraint("Tangent", 2, 2, 3, 2))
sketch13.addConstraint(Sketcher.Constraint("Tangent", 3, 1, 4, 1))
sketch13.addConstraint(Sketcher.Constraint("Coincident", 4, 2, 5, 1))
sketch13.addConstraint(Sketcher.Constraint("Coincident", 5, 2, 6, 1))
sketch13.addConstraint(Sketcher.Constraint("Coincident", 6, 2, 7, 1))
sketch13.addConstraint(Sketcher.Constraint("Coincident", 7, 2, 8, 1))
sketch13.addConstraint(Sketcher.Constraint("Coincident", 8, 2, 9, 1))
sketch13.addConstraint(Sketcher.Constraint("Coincident", 9, 2, 10, 1))
sketch13.addConstraint(Sketcher.Constraint("Coincident", 10, 2, 11, 1))
sketch13.addConstraint(Sketcher.Constraint("Coincident", 11, 2, 12, 1))
sketch13.addConstraint(Sketcher.Constraint("Coincident", 12, 2, 13, 1))
sketch13.addConstraint(Sketcher.Constraint("Coincident", 13, 2, 14, 1))
sketch13.addConstraint(Sketcher.Constraint("Coincident", 14, 2, 15, 1))
sketch13.addConstraint(Sketcher.Constraint("Coincident", 15, 2, 16, 1))
sketch13.addConstraint(Sketcher.Constraint("Coincident", 16, 2, 17, 1))
sketch13.addConstraint(Sketcher.Constraint("Coincident", 17, 2, 18, 1))
sketch13.addConstraint(Sketcher.Constraint("Coincident", 18, 2, 19, 1))
sketch13.addConstraint(Sketcher.Constraint("Coincident", 19, 2, 0, 1))
sketch13.addConstraint(Sketcher.Constraint("Vertical", 0))
sketch13.addConstraint(Sketcher.Constraint("Horizontal", 1))
sketch13.addConstraint(Sketcher.Constraint("Vertical", 2))
sketch13.addConstraint(Sketcher.Constraint("Vertical", 4))
sketch13.addConstraint(Sketcher.Constraint("Horizontal", 5))
sketch13.addConstraint(Sketcher.Constraint("Vertical", 6))
sketch13.addConstraint(Sketcher.Constraint("Horizontal", 7))
sketch13.addConstraint(Sketcher.Constraint("Vertical", 8))
sketch13.addConstraint(Sketcher.Constraint("Horizontal", 9))
sketch13.addConstraint(Sketcher.Constraint("Vertical", 10))
sketch13.addConstraint(Sketcher.Constraint("Horizontal", 11))
sketch13.addConstraint(Sketcher.Constraint("Vertical", 12))
sketch13.addConstraint(Sketcher.Constraint("Horizontal", 13))
sketch13.addConstraint(Sketcher.Constraint("Vertical", 14))
sketch13.addConstraint(Sketcher.Constraint("Horizontal", 15))
sketch13.addConstraint(Sketcher.Constraint("Vertical", 16))
sketch13.addConstraint(Sketcher.Constraint("Horizontal", 17))
sketch13.addConstraint(Sketcher.Constraint("Vertical", 18))
sketch13.addConstraint(Sketcher.Constraint("Horizontal", 19))
sketch13.addConstraint(Sketcher.Constraint("Symmetric", 9, 2, 12, 2, -2))
sketch13.addConstraint(Sketcher.Constraint("Symmetric", 7, 2, 14, 2, -2))
sketch13.addConstraint(Sketcher.Constraint("Symmetric", 5, 2, 16, 2, -2))
sketch13.addConstraint(Sketcher.Constraint("Symmetric", 0, 2, 17, 2, -2))
sketch13.addConstraint(Sketcher.Constraint("Horizontal", 5, 2, 8, 2))
sketch13.addConstraint(Sketcher.Constraint("DistanceX", 7, 1, 7, 2, Q("2 mm")))
sketch13.addConstraint(Sketcher.Constraint("DistanceX", 11, 1, 11, 2, Q("4 mm")))
sketch13.addConstraint(Sketcher.Constraint("DistanceX", 19, 2, 19, 1, Q("56 mm")))
sketch13.addConstraint(Sketcher.Constraint("DistanceY", 6, 2, 6, 1, Q("1 mm")))
sketch13.addConstraint(Sketcher.Constraint("DistanceY", 10, 2, 10, 1, Q("10 mm")))
sketch13.addConstraint(Sketcher.Constraint("Radius", 3, Q("0.75 mm")))
sketch13.addConstraint(Sketcher.Constraint("DistanceX", 9, 1, 9, 2, Q("10.5 mm")))
sketch13.addConstraint(Sketcher.Constraint("DistanceY", 0, 2, 0, 1, Q("5.5 mm")))
sketch13.addConstraint(Sketcher.Constraint("DistanceX", 3, 3, -1, 1, Q("19 mm")))
sketch13.addConstraint(Sketcher.Constraint("DistanceY", -1, 1, 3, 3, Q("33 mm")))
sketch13.addConstraint(Sketcher.Constraint("DistanceY", 2, 1, 2, 2, Q("0.75 mm")))
pad13 = doc.addObject("PartDesign::Pad", "Pad012")
body12.addObject(pad13)
pad13.Profile = sketch13
pad13.Length = 1

# Sketch on XY plane
sketch14 = doc.addObject("Sketcher::SketchObject", "Sketch013")
body12.addObject(sketch14)
sketch14.AttachmentSupport = (doc.getObject("XY_Plane011"), [""])
sketch14.MapMode = "FlatFace"
sketch14.addGeometry(Part.LineSegment(Vector(-12.5, 32.25, 0), Vector(-12.5, 31.25, 0)), False)
sketch14.addGeometry(Part.LineSegment(Vector(-12.5, 31.25, 0), Vector(-2, 31.25, 0)), False)
sketch14.addGeometry(Part.LineSegment(Vector(-2, 31.25, 0), Vector(-2, 32.25, 0)), False)
sketch14.addGeometry(Part.LineSegment(Vector(-2, 32.25, 0), Vector(-12.5, 32.25, 0)), False)
sketch14.addGeometry(Part.LineSegment(Vector(2, 32.25, 0), Vector(2, 31.25, 0)), False)
sketch14.addGeometry(Part.LineSegment(Vector(2, 31.25, 0), Vector(12.5, 31.25, 0)), False)
sketch14.addGeometry(Part.LineSegment(Vector(12.5, 31.25, 0), Vector(12.5, 32.25, 0)), False)
sketch14.addGeometry(Part.LineSegment(Vector(12.5, 32.25, 0), Vector(2, 32.25, 0)), False)
sketch14.addConstraint(Sketcher.Constraint("Coincident", 0, 2, 1, 1))
sketch14.addConstraint(Sketcher.Constraint("Coincident", 1, 2, 2, 1))
sketch14.addConstraint(Sketcher.Constraint("Coincident", 2, 2, 3, 1))
sketch14.addConstraint(Sketcher.Constraint("Coincident", 3, 2, 0, 1))
sketch14.addConstraint(Sketcher.Constraint("Coincident", 4, 2, 5, 1))
sketch14.addConstraint(Sketcher.Constraint("Coincident", 5, 2, 6, 1))
sketch14.addConstraint(Sketcher.Constraint("Coincident", 6, 2, 7, 1))
sketch14.addConstraint(Sketcher.Constraint("Coincident", 7, 2, 4, 1))
sketch14.addConstraint(Sketcher.Constraint("Vertical", 0))
sketch14.addConstraint(Sketcher.Constraint("Horizontal", 1))
sketch14.addConstraint(Sketcher.Constraint("Vertical", 2))
sketch14.addConstraint(Sketcher.Constraint("Horizontal", 3))
sketch14.addConstraint(Sketcher.Constraint("Vertical", 4))
sketch14.addConstraint(Sketcher.Constraint("Horizontal", 5))
sketch14.addConstraint(Sketcher.Constraint("Vertical", 6))
sketch14.addConstraint(Sketcher.Constraint("Horizontal", 7))
sketch14.addConstraint(Sketcher.Constraint("Symmetric", 1, 2, 4, 2, -2))
sketch14.addConstraint(Sketcher.Constraint("Symmetric", 3, 2, 6, 2, -2))
sketch14.addConstraint(Sketcher.Constraint("DistanceY", 0, 2, 0, 1, Q("1 mm")))
sketch14.addConstraint(Sketcher.Constraint("DistanceX", 1, 1, 1, 2, Q("10.5 mm")))
sketch14.addConstraint(Sketcher.Constraint("DistanceX", 1, 2, -1, 1, Q("2 mm")))
sketch14.addConstraint(Sketcher.Constraint("DistanceY", -1, 1, 0, 2, Q("31.25 mm")))
pad14 = doc.addObject("PartDesign::Pad", "Pad013")
body12.addObject(pad14)
pad14.Profile = sketch14
pad14.Length = 3
body13 = doc.addObject("PartDesign::Body", "Body012")

# Sketch on XY plane
sketch15 = doc.addObject("Sketcher::SketchObject", "Sketch014")
body13.addObject(sketch15)
sketch15.AttachmentSupport = (doc.getObject("XY_Plane012"), [""])
sketch15.MapMode = "FlatFace"
sketch15.addGeometry(Part.LineSegment(Vector(-50.995586, 43.686086, 0), Vector(-50.995586, 37.186086, 0)), False)
sketch15.addGeometry(Part.LineSegment(Vector(-50.995586, 37.186086, 0), Vector(-48.995586, 37.186086, 0)), False)
sketch15.addGeometry(Part.LineSegment(Vector(-48.995586, 37.186086, 0), Vector(-48.995586, 43.686086, 0)), False)
sketch15.addGeometry(Part.LineSegment(Vector(-48.995586, 43.686086, 0), Vector(-50.995586, 43.686086, 0)), False)
sketch15.addConstraint(Sketcher.Constraint("Coincident", 0, 2, 1, 1))
sketch15.addConstraint(Sketcher.Constraint("Coincident", 1, 2, 2, 1))
sketch15.addConstraint(Sketcher.Constraint("Coincident", 2, 2, 3, 1))
sketch15.addConstraint(Sketcher.Constraint("Coincident", 3, 2, 0, 1))
sketch15.addConstraint(Sketcher.Constraint("Vertical", 0))
sketch15.addConstraint(Sketcher.Constraint("Horizontal", 1))
sketch15.addConstraint(Sketcher.Constraint("Vertical", 2))
sketch15.addConstraint(Sketcher.Constraint("Horizontal", 3))
sketch15.addConstraint(Sketcher.Constraint("DistanceX", 1, 1, 1, 2, Q("2 mm")))
sketch15.addConstraint(Sketcher.Constraint("DistanceY", 0, 2, 0, 1, Q("6.5 mm")))
sketch15.addConstraint(Sketcher.Constraint("DistanceX", 0, 2, -1, 1, Q("50.995586 mm")))
sketch15.addConstraint(Sketcher.Constraint("DistanceY", -1, 1, 0, 2, Q("37.186086 mm")))
pad15 = doc.addObject("PartDesign::Pad", "Pad014")
body13.addObject(pad15)
pad15.Profile = sketch15
pad15.Length = 2

doc.recompute()
